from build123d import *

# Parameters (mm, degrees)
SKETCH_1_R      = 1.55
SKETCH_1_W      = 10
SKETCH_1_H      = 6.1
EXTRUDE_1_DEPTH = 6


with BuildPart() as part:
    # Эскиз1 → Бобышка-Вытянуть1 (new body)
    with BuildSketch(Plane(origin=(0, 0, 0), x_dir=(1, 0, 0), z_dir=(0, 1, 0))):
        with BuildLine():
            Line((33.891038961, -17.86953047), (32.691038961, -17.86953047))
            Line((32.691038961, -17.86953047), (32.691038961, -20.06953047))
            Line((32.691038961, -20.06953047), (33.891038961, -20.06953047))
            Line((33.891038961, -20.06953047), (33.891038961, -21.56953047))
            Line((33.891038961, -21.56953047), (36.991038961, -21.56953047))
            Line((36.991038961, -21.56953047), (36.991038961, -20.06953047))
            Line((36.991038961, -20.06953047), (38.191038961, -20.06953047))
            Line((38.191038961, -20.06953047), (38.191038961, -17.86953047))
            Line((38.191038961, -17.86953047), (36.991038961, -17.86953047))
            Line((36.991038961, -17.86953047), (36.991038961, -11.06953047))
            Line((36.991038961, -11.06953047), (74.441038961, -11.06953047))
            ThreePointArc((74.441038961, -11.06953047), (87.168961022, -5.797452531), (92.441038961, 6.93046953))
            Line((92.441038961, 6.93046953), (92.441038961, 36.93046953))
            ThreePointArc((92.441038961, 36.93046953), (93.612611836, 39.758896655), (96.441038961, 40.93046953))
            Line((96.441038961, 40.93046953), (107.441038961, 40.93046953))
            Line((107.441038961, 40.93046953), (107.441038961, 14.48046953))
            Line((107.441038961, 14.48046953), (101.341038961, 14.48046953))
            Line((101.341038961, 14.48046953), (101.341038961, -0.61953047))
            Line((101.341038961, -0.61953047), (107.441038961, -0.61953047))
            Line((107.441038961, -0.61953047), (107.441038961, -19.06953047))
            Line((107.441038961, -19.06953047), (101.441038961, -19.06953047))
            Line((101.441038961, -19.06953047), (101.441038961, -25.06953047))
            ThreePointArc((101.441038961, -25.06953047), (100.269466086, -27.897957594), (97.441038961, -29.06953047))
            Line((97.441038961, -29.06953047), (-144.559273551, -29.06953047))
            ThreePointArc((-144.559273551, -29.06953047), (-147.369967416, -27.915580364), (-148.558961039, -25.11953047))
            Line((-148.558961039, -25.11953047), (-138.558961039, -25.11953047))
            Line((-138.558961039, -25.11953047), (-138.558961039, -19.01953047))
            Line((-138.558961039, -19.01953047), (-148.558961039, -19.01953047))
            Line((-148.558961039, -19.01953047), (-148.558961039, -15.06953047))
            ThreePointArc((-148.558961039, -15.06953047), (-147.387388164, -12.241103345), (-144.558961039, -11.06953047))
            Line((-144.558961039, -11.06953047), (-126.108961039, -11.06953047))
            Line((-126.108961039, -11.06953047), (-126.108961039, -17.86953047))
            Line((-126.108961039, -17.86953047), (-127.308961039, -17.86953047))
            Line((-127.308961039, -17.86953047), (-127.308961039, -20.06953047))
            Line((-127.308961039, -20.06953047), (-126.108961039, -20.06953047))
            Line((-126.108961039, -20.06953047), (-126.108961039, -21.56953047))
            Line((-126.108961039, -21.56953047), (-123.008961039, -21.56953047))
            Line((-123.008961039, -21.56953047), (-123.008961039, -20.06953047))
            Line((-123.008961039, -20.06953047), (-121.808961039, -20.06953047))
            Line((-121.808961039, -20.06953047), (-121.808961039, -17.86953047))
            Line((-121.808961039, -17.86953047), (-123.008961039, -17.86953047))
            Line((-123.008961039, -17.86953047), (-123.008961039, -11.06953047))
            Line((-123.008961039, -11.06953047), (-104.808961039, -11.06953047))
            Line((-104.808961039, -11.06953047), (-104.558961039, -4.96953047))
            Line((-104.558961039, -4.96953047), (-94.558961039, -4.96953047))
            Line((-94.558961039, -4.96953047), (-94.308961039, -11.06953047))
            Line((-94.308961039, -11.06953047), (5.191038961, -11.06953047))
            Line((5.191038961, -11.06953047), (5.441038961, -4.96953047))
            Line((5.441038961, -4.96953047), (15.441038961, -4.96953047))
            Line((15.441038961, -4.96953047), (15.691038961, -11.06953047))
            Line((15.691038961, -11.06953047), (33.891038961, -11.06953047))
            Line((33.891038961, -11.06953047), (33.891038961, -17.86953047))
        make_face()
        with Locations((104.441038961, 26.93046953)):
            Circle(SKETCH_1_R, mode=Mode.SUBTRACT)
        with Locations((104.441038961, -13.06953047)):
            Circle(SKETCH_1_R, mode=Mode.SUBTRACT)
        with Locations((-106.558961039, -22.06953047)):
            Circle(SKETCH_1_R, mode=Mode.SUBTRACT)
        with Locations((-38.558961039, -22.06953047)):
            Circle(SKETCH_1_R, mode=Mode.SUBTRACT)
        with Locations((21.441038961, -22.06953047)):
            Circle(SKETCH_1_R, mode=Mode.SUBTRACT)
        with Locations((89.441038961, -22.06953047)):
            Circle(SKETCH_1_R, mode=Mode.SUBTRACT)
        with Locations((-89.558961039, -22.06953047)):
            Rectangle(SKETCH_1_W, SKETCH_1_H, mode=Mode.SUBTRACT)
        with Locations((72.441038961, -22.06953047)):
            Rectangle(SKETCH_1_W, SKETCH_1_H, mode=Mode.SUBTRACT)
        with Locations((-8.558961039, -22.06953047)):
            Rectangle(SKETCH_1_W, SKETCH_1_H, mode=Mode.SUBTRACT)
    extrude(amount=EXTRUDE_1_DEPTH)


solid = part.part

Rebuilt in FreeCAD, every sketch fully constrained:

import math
import FreeCAD as App
import Part
import Sketcher
Q = App.Units.Quantity


def add_polygon(sketch, points):
    """Adds a closed chain of lines whose ends are joined by coincident constraints."""
    first, n = sketch.GeometryCount, len(points)
    for a, b in zip(points, points[1:] + points[:1]):
        sketch.addGeometry(Part.LineSegment(App.Vector(*a, 0), App.Vector(*b, 0)), False)
    for i in range(n):
        sketch.addConstraint(Sketcher.Constraint("Coincident", first + i, 2, first + (i + 1) % n, 1))

doc = App.newDocument("Part")
params = doc.addObject("Spreadsheet::Sheet", "Params")
for row, (alias, value) in enumerate([
    ("sketch1_radius", "4 mm"),
    ("sketch1_radius2", "18 mm"),
    ("sketch1_diameter", "3.1 mm"),
    ("sketch1_width", "10 mm"),
    ("sketch1_width2", "6 mm"),
    ("pad1_length", "6 mm"),
], start=1):
    params.set(f"A{row}", alias)
    params.set(f"B{row}", "=" + value)
    params.setAlias(f"B{row}", alias)

body = doc.addObject("PartDesign::Body", "Body")

sketch1 = doc.addObject("Sketcher::SketchObject", "Sketch")
body.addObject(sketch1)
sketch1.AttachmentSupport = (doc.XZ_Plane, [""])
sketch1.MapMode = "FlatFace"
sketch1.addGeometry(Part.LineSegment(App.Vector(32.7, 17.9, 0), App.Vector(33.9, 17.9, 0)), False)
sketch1.addGeometry(Part.LineSegment(App.Vector(33.9, 17.9, 0), App.Vector(33.9, 11.1, 0)), False)
sketch1.addGeometry(Part.LineSegment(App.Vector(33.9, 11.1, 0), App.Vector(15.7, 11.1, 0)), False)
sketch1.addGeometry(Part.LineSegment(App.Vector(15.7, 11.1, 0), App.Vector(15.4, 5, 0)), False)
sketch1.addGeometry(Part.LineSegment(App.Vector(15.4, 5, 0), App.Vector(5.4, 5, 0)), False)
sketch1.addGeometry(Part.LineSegment(App.Vector(5.4, 5, 0), App.Vector(5.2, 11.1, 0)), False)
sketch1.addGeometry(Part.LineSegment(App.Vector(5.2, 11.1, 0), App.Vector(-94.3, 11.1, 0)), False)
sketch1.addGeometry(Part.LineSegment(App.Vector(-94.3, 11.1, 0), App.Vector(-94.6, 5, 0)), False)
sketch1.addGeometry(Part.LineSegment(App.Vector(-94.6, 5, 0), App.Vector(-104.6, 5, 0)), False)
sketch1.addGeometry(Part.LineSegment(App.Vector(-104.6, 5, 0), App.Vector(-104.8, 11.1, 0)), False)
sketch1.addGeometry(Part.LineSegment(App.Vector(-104.8, 11.1, 0), App.Vector(-123, 11.1, 0)), False)
sketch1.addGeometry(Part.LineSegment(App.Vector(-123, 11.1, 0), App.Vector(-123, 17.9, 0)), False)
sketch1.addGeometry(Part.LineSegment(App.Vector(-123, 17.9, 0), App.Vector(-121.8, 17.9, 0)), False)
sketch1.addGeometry(Part.LineSegment(App.Vector(-121.8, 17.9, 0), App.Vector(-121.8, 20.1, 0)), False)
sketch1.addGeometry(Part.LineSegment(App.Vector(-121.8, 20.1, 0), App.Vector(-123, 20.1, 0)), False)
sketch1.addGeometry(Part.LineSegment(App.Vector(-123, 20.1, 0), App.Vector(-123, 21.6, 0)), False)
sketch1.addGeometry(Part.LineSegment(App.Vector(-123, 21.6, 0), App.Vector(-126.1, 21.6, 0)), False)
sketch1.addGeometry(Part.LineSegment(App.Vector(-126.1, 21.6, 0), App.Vector(-126.1, 20.1, 0)), False)
sketch1.addGeometry(Part.LineSegment(App.Vector(-126.1, 20.1, 0), App.Vector(-127.3, 20.1, 0)), False)
sketch1.addGeometry(Part.LineSegment(App.Vector(-127.3, 20.1, 0), App.Vector(-127.3, 17.9, 0)), False)
sketch1.addGeometry(Part.LineSegment(App.Vector(-127.3, 17.9, 0), App.Vector(-126.1, 17.9, 0)), False)
sketch1.addGeometry(Part.LineSegment(App.Vector(-126.1, 17.9, 0), App.Vector(-126.1, 11.1, 0)), False)
sketch1.addGeometry(Part.LineSegment(App.Vector(-126.1, 11.1, 0), App.Vector(-144.6, 11.1, 0)), False)
sketch1.addGeometry(Part.ArcOfCircle(Part.Circle(App.Vector(-144.6, 15.1, 0), App.Vector(0, 0, 1), 4), math.radians(180), math.radians(270)), False)
sketch1.addGeometry(Part.LineSegment(App.Vector(-148.6, 15.1, 0), App.Vector(-148.6, 19, 0)), False)
sketch1.addGeometry(Part.LineSegment(App.Vector(-148.6, 19, 0), App.Vector(-138.6, 19, 0)), False)
sketch1.addGeometry(Part.LineSegment(App.Vector(-138.6, 19, 0), App.Vector(-138.6, 25.1, 0)), False)
sketch1.addGeometry(Part.LineSegment(App.Vector(-138.6, 25.1, 0), App.Vector(-148.6, 25.1, 0)), False)
sketch1.addGeometry(Part.ArcOfCircle(Part.Circle(App.Vector(-144.6, 25.1, 0), App.Vector(0, 0, 1), 4), math.radians(90), math.radians(179)), False)
sketch1.addGeometry(Part.LineSegment(App.Vector(-144.6, 29.1, 0), App.Vector(97.4, 29.1, 0)), False)
sketch1.addGeometry(Part.ArcOfCircle(Part.Circle(App.Vector(97.4, 25.1, 0), App.Vector(0, 0, 1), 4), math.radians(0), math.radians(90)), False)
sketch1.addGeometry(Part.LineSegment(App.Vector(101.4, 25.1, 0), App.Vector(101.4, 19.1, 0)), False)
sketch1.addGeometry(Part.LineSegment(App.Vector(101.4, 19.1, 0), App.Vector(107.4, 19.1, 0)), False)
sketch1.addGeometry(Part.LineSegment(App.Vector(107.4, 19.1, 0), App.Vector(107.4, 0.6, 0)), False)
sketch1.addGeometry(Part.LineSegment(App.Vector(107.4, 0.6, 0), App.Vector(101.3, 0.6, 0)), False)
sketch1.addGeometry(Part.LineSegment(App.Vector(101.3, 0.6, 0), App.Vector(101.3, -14.5, 0)), False)
sketch1.addGeometry(Part.LineSegment(App.Vector(101.3, -14.5, 0), App.Vector(107.4, -14.5, 0)), False)
sketch1.addGeometry(Part.LineSegment(App.Vector(107.4, -14.5, 0), App.Vector(107.4, -40.9, 0)), False)
sketch1.addGeometry(Part.LineSegment(App.Vector(107.4, -40.9, 0), App.Vector(96.4, -40.9, 0)), False)
sketch1.addGeometry(Part.ArcOfCircle(Part.Circle(App.Vector(96.4, -36.9, 0), App.Vector(0, 0, 1), 4), math.radians(180), math.radians(270)), False)
sketch1.addGeometry(Part.LineSegment(App.Vector(92.4, -36.9, 0), App.Vector(92.4, -6.9, 0)), False)
sketch1.addGeometry(Part.ArcOfCircle(Part.Circle(App.Vector(74.4, -6.9, 0), App.Vector(0, 0, 1), 18), math.radians(0), math.radians(90)), False)
sketch1.addGeometry(Part.LineSegment(App.Vector(74.4, 11.1, 0), App.Vector(37, 11.1, 0)), False)
sketch1.addGeometry(Part.LineSegment(App.Vector(37, 11.1, 0), App.Vector(37, 17.9, 0)), False)
sketch1.addGeometry(Part.LineSegment(App.Vector(37, 17.9, 0), App.Vector(38.2, 17.9, 0)), False)
sketch1.addGeometry(Part.LineSegment(App.Vector(38.2, 17.9, 0), App.Vector(38.2, 20.1, 0)), False)
sketch1.addGeometry(Part.LineSegment(App.Vector(38.2, 20.1, 0), App.Vector(37, 20.1, 0)), False)
sketch1.addGeometry(Part.LineSegment(App.Vector(37, 20.1, 0), App.Vector(37, 21.6, 0)), False)
sketch1.addGeometry(Part.LineSegment(App.Vector(37, 21.6, 0), App.Vector(33.9, 21.6, 0)), False)
sketch1.addGeometry(Part.LineSegment(App.Vector(33.9, 21.6, 0), App.Vector(33.9, 20.1, 0)), False)
sketch1.addGeometry(Part.LineSegment(App.Vector(33.9, 20.1, 0), App.Vector(32.7, 20.1, 0)), False)
sketch1.addGeometry(Part.LineSegment(App.Vector(32.7, 20.1, 0), App.Vector(32.7, 17.9, 0)), False)
sketch1.addGeometry(Part.Circle(App.Vector(89.4, 22.1, 0), App.Vector(0, 0, 1), 1.6), False)
add_polygon(sketch1, [(67.4, 25.1), (67.4, 19), (77.4, 19), (77.4, 25.1)])
sketch1.addGeometry(Part.Circle(App.Vector(104.4, 13.1, 0), App.Vector(0, 0, 1), 1.6), False)
sketch1.addGeometry(Part.Circle(App.Vector(21.4, 22.1, 0), App.Vector(0, 0, 1), 1.6), False)
add_polygon(sketch1, [(-13.6, 25.1), (-13.6, 19), (-3.6, 19), (-3.6, 25.1)])
sketch1.addGeometry(Part.Circle(App.Vector(-38.6, 22.1, 0), App.Vector(0, 0, 1), 1.6), False)
add_polygon(sketch1, [(-94.6, 25.1), (-94.6, 19), (-84.6, 19), (-84.6, 25.1)])
sketch1.addGeometry(Part.Circle(App.Vector(-106.6, 22.1, 0), App.Vector(0, 0, 1), 1.6), False)
sketch1.addGeometry(Part.Circle(App.Vector(104.4, -26.9, 0), App.Vector(0, 0, 1), 1.6), False)
sketch1.addConstraint([
    Sketcher.Constraint("Coincident", 0, 2, 1, 1),
    Sketcher.Constraint("Coincident", 1, 2, 2, 1),
    Sketcher.Constraint("Coincident", 2, 2, 3, 1),
    Sketcher.Constraint("Coincident", 3, 2, 4, 1),
    Sketcher.Constraint("Coincident", 4, 2, 5, 1),
    Sketcher.Constraint("Coincident", 5, 2, 6, 1),
    Sketcher.Constraint("Coincident", 6, 2, 7, 1),
    Sketcher.Constraint("Coincident", 7, 2, 8, 1),
    Sketcher.Constraint("Coincident", 8, 2, 9, 1),
    Sketcher.Constraint("Coincident", 9, 2, 10, 1),
    Sketcher.Constraint("Coincident", 10, 2, 11, 1),
    Sketcher.Constraint("Coincident", 11, 2, 12, 1),
    Sketcher.Constraint("Coincident", 12, 2, 13, 1),
    Sketcher.Constraint("Coincident", 13, 2, 14, 1),
    Sketcher.Constraint("Coincident", 14, 2, 15, 1),
    Sketcher.Constraint("Coincident", 15, 2, 16, 1),
    Sketcher.Constraint("Coincident", 16, 2, 17, 1),
    Sketcher.Constraint("Coincident", 17, 2, 18, 1),
    Sketcher.Constraint("Coincident", 18, 2, 19, 1),
    Sketcher.Constraint("Coincident", 19, 2, 20, 1),
    Sketcher.Constraint("Coincident", 20, 2, 21, 1),
    Sketcher.Constraint("Coincident", 21, 2, 22, 1),
    Sketcher.Constraint("Tangent", 22, 2, 23, 2),
    Sketcher.Constraint("Tangent", 23, 1, 24, 1),
    Sketcher.Constraint("Coincident", 24, 2, 25, 1),
    Sketcher.Constraint("Coincident", 25, 2, 26, 1),
    Sketcher.Constraint("Coincident", 26, 2, 27, 1),
    Sketcher.Constraint("Coincident", 27, 2, 28, 2),
    Sketcher.Constraint("Tangent", 28, 1, 29, 1),
    Sketcher.Constraint("Tangent", 29, 2, 30, 2),
    Sketcher.Constraint("Tangent", 30, 1, 31, 1),
    Sketcher.Constraint("Coincident", 31, 2, 32, 1),
    Sketcher.Constraint("Coincident", 32, 2, 33, 1),
    Sketcher.Constraint("Coincident", 33, 2, 34, 1),
    Sketcher.Constraint("Coincident", 34, 2, 35, 1),
    Sketcher.Constraint("Coincident", 35, 2, 36, 1),
    Sketcher.Constraint("Coincident", 36, 2, 37, 1),
    Sketcher.Constraint("Coincident", 37, 2, 38, 1),
    Sketcher.Constraint("Tangent", 38, 2, 39, 2),
    Sketcher.Constraint("Tangent", 39, 1, 40, 1),
    Sketcher.Constraint("Tangent", 40, 2, 41, 1),
    Sketcher.Constraint("Tangent", 41, 2, 42, 1),
    Sketcher.Constraint("Coincident", 42, 2, 43, 1),
    Sketcher.Constraint("Coincident", 43, 2, 44, 1),
    Sketcher.Constraint("Coincident", 44, 2, 45, 1),
    Sketcher.Constraint("Coincident", 45, 2, 46, 1),
    Sketcher.Constraint("Coincident", 46, 2, 47, 1),
    Sketcher.Constraint("Coincident", 47, 2, 48, 1),
    Sketcher.Constraint("Coincident", 48, 2, 49, 1),
    Sketcher.Constraint("Coincident", 49, 2, 50, 1),
    Sketcher.Constraint("Coincident", 50, 2, 51, 1),
    Sketcher.Constraint("Coincident", 51, 2, 0, 1),
    Sketcher.Constraint("Horizontal", 0),
    Sketcher.Constraint("Vertical", 1),
    Sketcher.Constraint("Horizontal", 2),
    Sketcher.Constraint("Horizontal", 4),
    Sketcher.Constraint("Horizontal", 6),
    Sketcher.Constraint("Horizontal", 8),
    Sketcher.Constraint("Horizontal", 10),
    Sketcher.Constraint("Vertical", 11),
    Sketcher.Constraint("Horizontal", 12),
    Sketcher.Constraint("Vertical", 13),
    Sketcher.Constraint("Horizontal", 14),
    Sketcher.Constraint("Vertical", 15),
    Sketcher.Constraint("Horizontal", 16),
    Sketcher.Constraint("Vertical", 17),
    Sketcher.Constraint("Horizontal", 18),
    Sketcher.Constraint("Vertical", 19),
    Sketcher.Constraint("Horizontal", 20),
    Sketcher.Constraint("Vertical", 21),
    Sketcher.Constraint("Horizontal", 22),
    Sketcher.Constraint("Vertical", 24),
    Sketcher.Constraint("Horizontal", 25),
    Sketcher.Constraint("Vertical", 26),
    Sketcher.Constraint("Horizontal", 27),
    Sketcher.Constraint("Horizontal", 29),
    Sketcher.Constraint("Vertical", 31),
    Sketcher.Constraint("Horizontal", 32),
    Sketcher.Constraint("Vertical", 33),
    Sketcher.Constraint("Horizontal", 34),
    Sketcher.Constraint("Vertical", 35),
    Sketcher.Constraint("Horizontal", 36),
    Sketcher.Constraint("Vertical", 37),
    Sketcher.Constraint("Horizontal", 38),
    Sketcher.Constraint("Vertical", 40),
    Sketcher.Constraint("Horizontal", 42),
    Sketcher.Constraint("Vertical", 43),
    Sketcher.Constraint("Horizontal", 44),
    Sketcher.Constraint("Vertical", 45),
    Sketcher.Constraint("Horizontal", 46),
    Sketcher.Constraint("Vertical", 47),
    Sketcher.Constraint("Horizontal", 48),
    Sketcher.Constraint("Vertical", 49),
    Sketcher.Constraint("Horizontal", 50),
    Sketcher.Constraint("Vertical", 51),
    Sketcher.Constraint("Vertical", 53),
    Sketcher.Constraint("Horizontal", 54),
    Sketcher.Constraint("Vertical", 55),
    Sketcher.Constraint("Horizontal", 56),
    Sketcher.Constraint("Vertical", 59),
    Sketcher.Constraint("Horizontal", 60),
    Sketcher.Constraint("Vertical", 61),
    Sketcher.Constraint("Horizontal", 62),
    Sketcher.Constraint("Vertical", 64),
    Sketcher.Constraint("Horizontal", 65),
    Sketcher.Constraint("Vertical", 66),
    Sketcher.Constraint("Horizontal", 67),
    Sketcher.Constraint("Equal", 23, 28),
    Sketcher.Constraint("Equal", 28, 30),
    Sketcher.Constraint("Equal", 30, 39),
    Sketcher.Constraint("Equal", 52, 57),
    Sketcher.Constraint("Equal", 57, 58),
    Sketcher.Constraint("Equal", 58, 63),
    Sketcher.Constraint("Equal", 63, 68),
    Sketcher.Constraint("Equal", 68, 69),
    Sketcher.Constraint("Parallel", 3, 7),
    Sketcher.Constraint("Parallel", 5, 9),
    Sketcher.Constraint("Horizontal", 52, 3, 58, 3),
    Sketcher.Constraint("Horizontal", 58, 3, 63, 3),
    Sketcher.Constraint("Horizontal", 63, 3, 68, 3),
    Sketcher.Constraint("Horizontal", 2, 2, 5, 2),
    Sketcher.Constraint("Horizontal", 4, 2, 7, 2),
    Sketcher.Constraint("Horizontal", 6, 2, 9, 2),
    Sketcher.Constraint("Horizontal", 0, 2, 11, 2),
    Sketcher.Constraint("Horizontal", 14, 2, 17, 2),
    Sketcher.Constraint("Horizontal", 12, 2, 19, 2),
    Sketcher.Constraint("Horizontal", 10, 2, 21, 2),
    Sketcher.Constraint("Horizontal", 22, 2, 41, 2),
    Sketcher.Constraint("Horizontal", 20, 2, 43, 2),
    Sketcher.Constraint("Horizontal", 18, 2, 45, 2),
    Sketcher.Constraint("Horizontal", 16, 2, 47, 2),
    Sketcher.Constraint("Horizontal", 46, 2, 49, 2),
    Sketcher.Constraint("Horizontal", 25, 2, 53, 2),
    Sketcher.Constraint("Horizontal", 27, 2, 55, 2),
    Sketcher.Constraint("Horizontal", 54, 2, 59, 2),
    Sketcher.Constraint("Horizontal", 56, 2, 61, 2),
    Sketcher.Constraint("Horizontal", 60, 2, 64, 2),
    Sketcher.Constraint("Horizontal", 62, 2, 66, 2),
    Sketcher.Constraint("Vertical", 57, 3, 69, 3),
    Sketcher.Constraint("Vertical", 11, 2, 14, 2),
    Sketcher.Constraint("Vertical", 17, 2, 20, 2),
    Sketcher.Constraint("Vertical", 24, 2, 27, 2),
    Sketcher.Constraint("Vertical", 33, 2, 36, 2),
    Sketcher.Constraint("Vertical", 43, 2, 46, 2),
    Sketcher.Constraint("Vertical", 1, 2, 48, 2),
    Sketcher.Constraint("Vertical", 7, 2, 64, 2),
    Sketcher.Constraint("Equal", 4, 8),
    Sketcher.Constraint("Equal", 2, 10),
    Sketcher.Constraint("Equal", 0, 12),
    Sketcher.Constraint("Equal", 14, 18),
    Sketcher.Constraint("Equal", 8, 25),
    Sketcher.Constraint("Equal", 20, 44),
    Sketcher.Constraint("Equal", 16, 48),
    Sketcher.Constraint("Equal", 27, 54),
    Sketcher.Constraint("Equal", 56, 60),
    Sketcher.Constraint("Equal", 62, 65),
    Sketcher.Constraint("Equal", 36, 26),
    Sketcher.Constraint("Equal", 32, 31),
    Sketcher.Constraint("Equal", 22, 33),
    Sketcher.Constraint("Equal", 3, 5),
    Sketcher.Constraint("Radius", 23, Q("4 mm")),
    Sketcher.Constraint("Radius", 41, Q("18 mm")),
    Sketcher.Constraint("Diameter", 52, Q("3.1 mm")),
    Sketcher.Constraint("DistanceX", 4, 2, 4, 1, Q("10 mm")),
    Sketcher.Constraint("DistanceX", 32, 1, 32, 2, Q("6 mm")),
    Sketcher.Constraint("DistanceX", 38, 2, 38, 1, Q("11 mm")),
    Sketcher.Constraint("DistanceY", 40, 1, 40, 2, Q("30 mm")),
    Sketcher.Constraint("DistanceX", 0, 1, 0, 2, Q("1.2 mm")),
    Sketcher.Constraint("DistanceX", 2, 2, 2, 1, Q("18.2 mm")),
    Sketcher.Constraint("DistanceX", 6, 2, 6, 1, Q("99.5 mm")),
    Sketcher.Constraint("DistanceX", 16, 2, 16, 1, Q("3.1 mm")),
    Sketcher.Constraint("DistanceX", 34, 2, 34, 1, Q("6.1 mm")),
    Sketcher.Constraint("DistanceY", 1, 2, 1, 1, Q("6.8 mm")),
    Sketcher.Constraint("DistanceY", 13, 1, 13, 2, Q("2.2 mm")),
    Sketcher.Constraint("DistanceY", 15, 1, 15, 2, Q("1.5 mm")),
    Sketcher.Constraint("DistanceY", 35, 2, 35, 1, Q("15.1 mm")),
    Sketcher.Constraint("DistanceX", 22, 2, 22, 1, Q("18.45 mm")),
    Sketcher.Constraint("DistanceX", 42, 2, 42, 1, Q("37.45 mm")),
    Sketcher.Constraint("DistanceY", 24, 1, 24, 2, Q("3.95 mm")),
    Sketcher.Constraint("DistanceY", 37, 2, 37, 1, Q("26.45 mm")),
    Sketcher.Constraint("Distance", 3, Q("6.105121 mm")),
    Sketcher.Constraint("DistanceX", 29, 1, 29, 2, Q("242.000313 mm")),
    Sketcher.Constraint("DistanceX", 23, 3, -1, 1, Q("144.558961 mm")),
    Sketcher.Constraint("DistanceY", -1, 1, 23, 3, Q("15.06953 mm")),
    Sketcher.Constraint("DistanceX", -1, 1, 52, 3, Q("89.441039 mm")),
    Sketcher.Constraint("DistanceY", -1, 1, 52, 3, Q("22.06953 mm")),
    Sketcher.Constraint("DistanceX", -1, 1, 57, 3, Q("104.441039 mm")),
    Sketcher.Constraint("DistanceY", -1, 1, 57, 3, Q("13.06953 mm")),
    Sketcher.Constraint("DistanceX", -1, 1, 58, 3, Q("21.441039 mm")),
    Sketcher.Constraint("DistanceX", 63, 3, -1, 1, Q("38.558961 mm")),
    Sketcher.Constraint("DistanceX", 68, 3, -1, 1, Q("106.558961 mm")),
    Sketcher.Constraint("DistanceY", 69, 3, -1, 1, Q("26.93047 mm")),
    Sketcher.Constraint("DistanceX", -1, 1, 53, 2, Q("67.441039 mm")),
    Sketcher.Constraint("DistanceX", 59, 2, -1, 1, Q("13.558961 mm")),
])
sketch1.setExpression("Constraints[172]", "Params.sketch1_radius")
sketch1.setExpression("Constraints[173]", "Params.sketch1_radius2")
sketch1.setExpression("Constraints[174]", "Params.sketch1_diameter")
sketch1.setExpression("Constraints[175]", "Params.sketch1_width")
sketch1.setExpression("Constraints[176]", "Params.sketch1_width2")
pad1 = doc.addObject("PartDesign::Pad", "Pad")
body.addObject(pad1)
pad1.Profile = sketch1
pad1.setExpression("Length", "Params.pad1_length")
pad1.Reversed = True

doc.recompute()
